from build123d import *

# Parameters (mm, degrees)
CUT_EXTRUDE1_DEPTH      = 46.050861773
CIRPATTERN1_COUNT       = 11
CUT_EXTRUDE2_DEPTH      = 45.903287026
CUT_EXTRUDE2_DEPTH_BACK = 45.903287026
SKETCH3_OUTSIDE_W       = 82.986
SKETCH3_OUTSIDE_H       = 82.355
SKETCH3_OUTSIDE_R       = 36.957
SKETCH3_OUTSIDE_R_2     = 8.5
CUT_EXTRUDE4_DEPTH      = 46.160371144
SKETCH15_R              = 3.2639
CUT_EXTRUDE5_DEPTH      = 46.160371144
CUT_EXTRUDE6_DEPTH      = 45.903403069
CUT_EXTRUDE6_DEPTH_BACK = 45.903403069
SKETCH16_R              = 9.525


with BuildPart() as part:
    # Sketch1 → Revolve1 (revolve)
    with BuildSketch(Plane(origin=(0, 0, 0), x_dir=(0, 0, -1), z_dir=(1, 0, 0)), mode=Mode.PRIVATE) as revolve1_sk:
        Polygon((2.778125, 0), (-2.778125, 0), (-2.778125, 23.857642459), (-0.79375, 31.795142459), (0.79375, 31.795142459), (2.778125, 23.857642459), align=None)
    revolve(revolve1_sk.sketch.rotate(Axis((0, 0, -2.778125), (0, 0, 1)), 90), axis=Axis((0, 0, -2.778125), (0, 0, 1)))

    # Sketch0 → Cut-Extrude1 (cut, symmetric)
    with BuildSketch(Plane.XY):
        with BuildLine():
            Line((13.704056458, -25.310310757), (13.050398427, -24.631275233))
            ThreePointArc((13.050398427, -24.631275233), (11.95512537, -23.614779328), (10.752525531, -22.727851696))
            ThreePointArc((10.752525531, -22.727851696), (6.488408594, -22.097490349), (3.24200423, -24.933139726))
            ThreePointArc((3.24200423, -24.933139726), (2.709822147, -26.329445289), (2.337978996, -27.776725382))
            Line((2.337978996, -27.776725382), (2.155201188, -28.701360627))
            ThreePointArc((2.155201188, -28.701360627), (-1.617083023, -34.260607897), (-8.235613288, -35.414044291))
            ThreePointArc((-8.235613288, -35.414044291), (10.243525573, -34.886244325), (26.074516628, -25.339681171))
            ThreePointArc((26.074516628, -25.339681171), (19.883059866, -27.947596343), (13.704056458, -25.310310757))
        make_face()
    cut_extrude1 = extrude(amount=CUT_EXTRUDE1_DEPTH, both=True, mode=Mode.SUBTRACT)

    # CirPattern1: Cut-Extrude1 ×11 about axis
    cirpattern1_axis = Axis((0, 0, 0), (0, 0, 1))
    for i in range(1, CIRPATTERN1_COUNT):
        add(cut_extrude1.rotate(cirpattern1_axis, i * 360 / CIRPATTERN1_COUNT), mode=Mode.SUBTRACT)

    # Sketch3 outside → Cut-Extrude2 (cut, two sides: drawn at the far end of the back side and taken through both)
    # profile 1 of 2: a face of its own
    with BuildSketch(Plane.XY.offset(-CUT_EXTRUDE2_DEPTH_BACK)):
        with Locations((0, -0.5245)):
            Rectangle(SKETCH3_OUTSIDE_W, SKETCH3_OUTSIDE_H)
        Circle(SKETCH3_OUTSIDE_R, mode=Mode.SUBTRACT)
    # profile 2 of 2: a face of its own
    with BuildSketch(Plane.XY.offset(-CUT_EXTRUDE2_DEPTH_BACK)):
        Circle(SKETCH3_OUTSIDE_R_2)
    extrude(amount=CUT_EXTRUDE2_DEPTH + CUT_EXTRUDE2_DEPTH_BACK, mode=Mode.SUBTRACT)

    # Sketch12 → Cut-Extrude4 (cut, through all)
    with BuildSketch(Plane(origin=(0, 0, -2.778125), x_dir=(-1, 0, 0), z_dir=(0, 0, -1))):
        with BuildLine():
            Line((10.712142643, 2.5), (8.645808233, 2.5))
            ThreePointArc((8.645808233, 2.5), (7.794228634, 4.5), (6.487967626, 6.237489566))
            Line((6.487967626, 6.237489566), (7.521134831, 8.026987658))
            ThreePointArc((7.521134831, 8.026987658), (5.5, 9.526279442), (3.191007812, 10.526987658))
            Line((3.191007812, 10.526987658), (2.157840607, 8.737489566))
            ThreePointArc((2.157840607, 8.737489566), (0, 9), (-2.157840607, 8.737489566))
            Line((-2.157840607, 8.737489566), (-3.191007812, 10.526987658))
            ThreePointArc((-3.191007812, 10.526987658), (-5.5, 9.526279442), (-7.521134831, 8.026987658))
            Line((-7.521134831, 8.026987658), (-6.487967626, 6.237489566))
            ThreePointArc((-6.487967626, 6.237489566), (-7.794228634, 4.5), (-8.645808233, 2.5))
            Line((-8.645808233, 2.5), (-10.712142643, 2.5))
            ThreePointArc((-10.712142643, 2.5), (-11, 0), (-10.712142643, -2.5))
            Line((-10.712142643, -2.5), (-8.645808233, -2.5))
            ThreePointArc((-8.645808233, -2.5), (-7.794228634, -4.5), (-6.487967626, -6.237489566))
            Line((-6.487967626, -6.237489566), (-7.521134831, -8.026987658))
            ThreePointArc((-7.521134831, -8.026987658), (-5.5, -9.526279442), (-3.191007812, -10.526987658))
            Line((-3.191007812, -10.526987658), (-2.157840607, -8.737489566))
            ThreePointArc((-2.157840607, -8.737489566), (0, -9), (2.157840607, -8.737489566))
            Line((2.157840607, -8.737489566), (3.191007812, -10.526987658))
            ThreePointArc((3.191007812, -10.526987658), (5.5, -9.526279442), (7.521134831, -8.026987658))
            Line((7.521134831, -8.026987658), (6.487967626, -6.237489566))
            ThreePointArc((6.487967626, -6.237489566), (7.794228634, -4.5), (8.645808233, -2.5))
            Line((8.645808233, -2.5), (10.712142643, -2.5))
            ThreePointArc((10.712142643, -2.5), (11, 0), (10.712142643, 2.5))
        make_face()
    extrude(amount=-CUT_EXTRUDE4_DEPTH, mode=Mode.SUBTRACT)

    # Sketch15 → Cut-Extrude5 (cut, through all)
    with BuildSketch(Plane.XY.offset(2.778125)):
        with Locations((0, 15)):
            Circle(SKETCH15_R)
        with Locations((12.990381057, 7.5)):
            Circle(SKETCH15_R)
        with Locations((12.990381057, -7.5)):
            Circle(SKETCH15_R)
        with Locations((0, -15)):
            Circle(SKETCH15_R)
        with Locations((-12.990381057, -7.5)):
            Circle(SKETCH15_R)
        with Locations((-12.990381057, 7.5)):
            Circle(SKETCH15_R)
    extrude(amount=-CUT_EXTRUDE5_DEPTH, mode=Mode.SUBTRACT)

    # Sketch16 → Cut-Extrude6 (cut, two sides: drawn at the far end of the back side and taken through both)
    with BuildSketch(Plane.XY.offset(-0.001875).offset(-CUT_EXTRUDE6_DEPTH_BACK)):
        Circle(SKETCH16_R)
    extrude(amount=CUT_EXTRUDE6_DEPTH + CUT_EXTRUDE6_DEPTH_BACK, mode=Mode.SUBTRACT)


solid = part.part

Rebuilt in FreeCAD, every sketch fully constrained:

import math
import FreeCAD as App
import Part
import Sketcher

V = App.Vector
Q = App.Units.Quantity


def add_polygon(sketch, points):
    """Adds a closed chain of lines whose ends are joined by coincident constraints."""
    first, n = sketch.GeometryCount, len(points)
    for a, b in zip(points, points[1:] + points[:1]):
        sketch.addGeometry(Part.LineSegment(App.Vector(*a, 0), App.Vector(*b, 0)), False)
    for i in range(n):
        sketch.addConstraint(Sketcher.Constraint("Coincident", first + i, 2, first + (i + 1) % n, 1))

doc = App.newDocument("Part")
params = doc.addObject("Spreadsheet::Sheet", "Params")
for row, (alias, value) in enumerate([
    ("sketch1_height", "0.21875 in"),
    ("sketch1_height2", "0.0625 in"),
    ("revolution_angle", "360 deg"),
    ("pocket1_length", "92.101724 mm"),
    ("sketch3_diameter", "2.91 in"),
    ("sketch5_diameter", "0.257 in"),
    ("sketch6_diameter", "0.75 in"),
], start=1):
    params.set(f"A{row}", alias)
    params.set(f"B{row}", "=" + value)
    params.setAlias(f"B{row}", alias)

body = doc.addObject("PartDesign::Body", "Body")

# Sketch on YZ plane
sketch1 = doc.addObject("Sketcher::SketchObject", "Sketch")
body.addObject(sketch1)
sketch1.AttachmentSupport = (doc.YZ_Plane, [""])
sketch1.MapMode = "FlatFace"
add_polygon(sketch1, [(0, 2.778125), (0, -2.778125), (23.857642, -2.778125), (31.795142, -0.79375), (31.795142, 0.79375), (23.857642, 2.778125)])  # lines 0-5
sketch1.addConstraint(Sketcher.Constraint("Vertical", 0))
sketch1.addConstraint(Sketcher.Constraint("Horizontal", 1))
sketch1.addConstraint(Sketcher.Constraint("Vertical", 3))
sketch1.addConstraint(Sketcher.Constraint("Horizontal", 5))
sketch1.addConstraint(Sketcher.Constraint("Symmetric", 0, 2, 5, 2, -1, 1))
sketch1.addConstraint(Sketcher.Constraint("Vertical", 1, 2, 4, 2))
sketch1.addConstraint(Sketcher.Constraint("Equal", 2, 4))
sketch1.addConstraint(Sketcher.Constraint("DistanceY", 0, 2, 0, 1, Q("0.21875 in")))
sketch1.addConstraint(Sketcher.Constraint("DistanceY", 3, 1, 3, 2, Q("0.0625 in")))
sketch1.addConstraint(Sketcher.Constraint("DistanceX", 1, 2, 2, 2, Q("0.3125 in")))
sketch1.addConstraint(Sketcher.Constraint("DistanceX", 1, 1, 1, 2, 23.857642))
sketch1.setExpression("Constraints[13]", "Params.sketch1_height")
sketch1.setExpression("Constraints[14]", "Params.sketch1_height2")
revolution = doc.addObject("PartDesign::Revolution", "Revolution")
body.addObject(revolution)
revolution.Profile = sketch1
revolution.ReferenceAxis = (sketch1, ["V_Axis"])
revolution.setExpression("Angle", "Params.revolution_angle")

# Sketch on XY plane
sketch2 = doc.addObject("Sketcher::SketchObject", "Sketch001")
body.addObject(sketch2)
sketch2.AttachmentSupport = (doc.XY_Plane, [""])
sketch2.MapMode = "FlatFace"
sketch2.addGeometry(Part.LineSegment(V(13.704056, -25.310311, 0), V(13.050398, -24.631275, 0)), False)
sketch2.addGeometry(Part.ArcOfCircle(Part.Circle(V(3.489065, -33.835275, 0), V(0, 0, 1), 13.2715), math.radians(43.909091), math.radians(56.818182)), False)
sketch2.addGeometry(Part.ArcOfCircle(Part.Circle(V(7.9375, -27.032642, 0), V(0, 0, 1), 5.1435), math.radians(56.818182), math.radians(155.909091)), False)
sketch2.addGeometry(Part.ArcOfCircle(Part.Circle(V(15.357543, -30.350375, 0), V(0, 0, 1), 13.2715), math.radians(155.909091), math.radians(168.818182)), False)
sketch2.addGeometry(Part.LineSegment(V(2.337979, -27.776725, 0), V(2.155201, -28.701361, 0)), False)
sketch2.addGeometry(Part.ArcOfCircle(Part.Circle(V(-6.2865, -27.032642, 0), V(0, 0, 1), 8.605053), math.radians(-103.091569), math.radians(-11.181818)), False)
sketch2.addGeometry(Part.ArcOfCircle(Part.Circle(V(0, 0, 0), V(0, 0, 1), 36.359041), math.radians(-103.091569), math.radians(-44.181158)), False)
sketch2.addGeometry(Part.ArcOfCircle(Part.Circle(V(19.90349, -19.342567, 0), V(0, 0, 1), 8.605053), math.radians(-136.090909), math.radians(-44.181158)), False)
sketch2.addConstraint(Sketcher.Constraint("Tangent", 0, 2, 1, 1))
sketch2.addConstraint(Sketcher.Constraint("Tangent", 1, 2, 2, 1))
sketch2.addConstraint(Sketcher.Constraint("Tangent", 2, 2, 3, 1))
sketch2.addConstraint(Sketcher.Constraint("Tangent", 3, 2, 4, 1))
sketch2.addConstraint(Sketcher.Constraint("Tangent", 4, 2, 5, 2))
sketch2.addConstraint(Sketcher.Constraint("Tangent", 5, 1, 6, 1))
sketch2.addConstraint(Sketcher.Constraint("Tangent", 6, 2, 7, 2))
sketch2.addConstraint(Sketcher.Constraint("Tangent", 7, 1, 0, 1))
sketch2.addConstraint(Sketcher.Constraint("Coincident", 6, 3, -1, 1))
sketch2.addConstraint(Sketcher.Constraint("Equal", 1, 3))
sketch2.addConstraint(Sketcher.Constraint("Equal", 5, 7))
sketch2.addConstraint(Sketcher.Constraint("Horizontal", 2, 3, 5, 3))
sketch2.addConstraint(Sketcher.Constraint("Equal", 0, 4))
sketch2.addConstraint(Sketcher.Constraint("Radius", 1, Q("0.5225 in")))
sketch2.addConstraint(Sketcher.Constraint("Radius", 2, Q("0.2025 in")))
sketch2.addConstraint(Sketcher.Constraint("DistanceX", 5, 3, 2, 3, Q("0.56 in")))
sketch2.addConstraint(Sketcher.Constraint("DistanceX", -1, 1, 2, 3, Q("0.3125 in")))
sketch2.addConstraint(Sketcher.Constraint("Radius", 6, 36.359041))
sketch2.addConstraint(Sketcher.Constraint("Radius", 5, 8.605053))
sketch2.addConstraint(Sketcher.Constraint("DistanceX", 1, 2, 3, 3, Q("0.1812999 in")))
sketch2.addConstraint(Sketcher.Constraint("DistanceY", 1, 3, 1, 2, Q("0.4373001 in")))
pocket1 = doc.addObject("PartDesign::Pocket", "Pocket")
body.addObject(pocket1)
pocket1.Profile = sketch2
pocket1.setExpression("Length", "Params.pocket1_length")
pocket1.Midplane = True
doc.recompute()

polarpattern = doc.addObject("PartDesign::PolarPattern", "PolarPattern")
body.addObject(polarpattern)
polarpattern.Originals = [pocket1]
polarpattern.Axis = (doc.Z_Axis, [""])
polarpattern.Angle = 360
polarpattern.Occurrences = 11
body.Tip = polarpattern

# Sketch on XY plane
sketch3 = doc.addObject("Sketcher::SketchObject", "Sketch002")
body.addObject(sketch3)
sketch3.AttachmentSupport = (doc.XY_Plane, [""])
sketch3.MapMode = "FlatFace"
add_polygon(sketch3, [(-41.493, 40.653), (-41.493, -41.702), (41.493, -41.702), (41.493, 40.653)])  # lines 0-3
sketch3.addGeometry(Part.Circle(V(0, 0, 0), V(0, 0, 1), 36.957), False)  # 4
sketch3.addGeometry(Part.Circle(V(0, 0, 0), V(0, 0, 1), 8.5), False)  # 5
sketch3.addConstraint(Sketcher.Constraint("Vertical", 0))
sketch3.addConstraint(Sketcher.Constraint("Horizontal", 1))
sketch3.addConstraint(Sketcher.Constraint("Vertical", 2))
sketch3.addConstraint(Sketcher.Constraint("Horizontal", 3))
sketch3.addConstraint(Sketcher.Constraint("Coincident", 4, 3, -1, 1))
sketch3.addConstraint(Sketcher.Constraint("Coincident", 5, 3, -1, 1))
sketch3.addConstraint(Sketcher.Constraint("Diameter", 4, Q("2.91 in")))
sketch3.addConstraint(Sketcher.Constraint("Diameter", 5, 17.0))
sketch3.addConstraint(Sketcher.Constraint("DistanceX", 1, 1, 1, 2, 82.986))
sketch3.addConstraint(Sketcher.Constraint("DistanceY", 0, 2, 0, 1, 82.355))
sketch3.addConstraint(Sketcher.Constraint("DistanceX", 0, 2, -1, 1, 41.493))
sketch3.addConstraint(Sketcher.Constraint("DistanceY", 0, 2, -1, 1, 41.702))
sketch3.setExpression("Constraints[10]", "Params.sketch3_diameter")
pocket2 = doc.addObject("PartDesign::Pocket", "Pocket001")
body.addObject(pocket2)
pocket2.Profile = sketch3
pocket2.Type = "ThroughAll"
pocket2.Midplane = True

# Sketch on XY plane
sketch4 = doc.addObject("Sketcher::SketchObject", "Sketch003")
body.addObject(sketch4)
sketch4.AttachmentSupport = (doc.XY_Plane, [""])
sketch4.MapMode = "FlatFace"
sketch4.AttachmentOffset = App.Placement(V(0, 0, -0.109375 * 25.4), App.Rotation())
sketch4.addGeometry(Part.LineSegment(V(-10.712143, 2.5, 0), V(-8.645808, 2.5, 0)), False)
sketch4.addGeometry(Part.ArcOfCircle(Part.Circle(V(0, 0, 0), V(0, 0, 1), 9), math.radians(136.12762), math.radians(163.87238)), False)
sketch4.addGeometry(Part.LineSegment(V(-6.487968, 6.23749, 0), V(-7.521135, 8.026988, 0)), False)
sketch4.addGeometry(Part.ArcOfCircle(Part.Circle(V(0, 0, 0), V(0, 0, 1), 11), math.radians(106.863441), math.radians(133.136559)), False)
sketch4.addGeometry(Part.LineSegment(V(-3.191008, 10.526988, 0), V(-2.157841, 8.73749, 0)), False)
sketch4.addGeometry(Part.ArcOfCircle(Part.Circle(V(0, 0, 0), V(0, 0, 1), 9), math.radians(76.12762), math.radians(103.87238)), False)
sketch4.addGeometry(Part.LineSegment(V(2.157841, 8.73749, 0), V(3.191008, 10.526988, 0)), False)
sketch4.addGeometry(Part.ArcOfCircle(Part.Circle(V(0, 0, 0), V(0, 0, 1), 11), math.radians(46.863441), math.radians(73.136559)), False)
sketch4.addGeometry(Part.LineSegment(V(7.521135, 8.026988, 0), V(6.487968, 6.23749, 0)), False)
sketch4.addGeometry(Part.ArcOfCircle(Part.Circle(V(0, 0, 0), V(0, 0, 1), 9), math.radians(16.12762), math.radians(43.87238)), False)
sketch4.addGeometry(Part.LineSegment(V(8.645808, 2.5, 0), V(10.712143, 2.5, 0)), False)
sketch4.addGeometry(Part.ArcOfCircle(Part.Circle(V(0, 0, 0), V(0, 0, 1), 11), math.radians(-13.136559), math.radians(13.136559)), False)
sketch4.addGeometry(Part.LineSegment(V(10.712143, -2.5, 0), V(8.645808, -2.5, 0)), False)
sketch4.addGeometry(Part.ArcOfCircle(Part.Circle(V(0, 0, 0), V(0, 0, 1), 9), math.radians(-43.87238), math.radians(-16.12762)), False)
sketch4.addGeometry(Part.LineSegment(V(6.487968, -6.23749, 0), V(7.521135, -8.026988, 0)), False)
sketch4.addGeometry(Part.ArcOfCircle(Part.Circle(V(0, 0, 0), V(0, 0, 1), 11), math.radians(-73.136559), math.radians(-46.863441)), False)
sketch4.addGeometry(Part.LineSegment(V(3.191008, -10.526988, 0), V(2.157841, -8.73749, 0)), False)
sketch4.addGeometry(Part.ArcOfCircle(Part.Circle(V(0, 0, 0), V(0, 0, 1), 9), math.radians(-103.87238), math.radians(-76.12762)), False)
sketch4.addGeometry(Part.LineSegment(V(-2.157841, -8.73749, 0), V(-3.191008, -10.526988, 0)), False)
sketch4.addGeometry(Part.ArcOfCircle(Part.Circle(V(0, 0, 0), V(0, 0, 1), 11), math.radians(-133.136559), math.radians(-106.863441)), False)
sketch4.addGeometry(Part.LineSegment(V(-7.521135, -8.026988, 0), V(-6.487968, -6.23749, 0)), False)
sketch4.addGeometry(Part.ArcOfCircle(Part.Circle(V(0, 0, 0), V(0, 0, 1), 9), math.radians(-163.87238), math.radians(-136.12762)), False)
sketch4.addGeometry(Part.LineSegment(V(-8.645808, -2.5, 0), V(-10.712143, -2.5, 0)), False)
sketch4.addGeometry(Part.ArcOfCircle(Part.Circle(V(0, 0, 0), V(0, 0, 1), 11), math.radians(166.863441), math.radians(193.136559)), False)
sketch4.addConstraint(Sketcher.Constraint("Coincident", 0, 2, 1, 2))
sketch4.addConstraint(Sketcher.Constraint("Coincident", 1, 1, 2, 1))
sketch4.addConstraint(Sketcher.Constraint("Coincident", 2, 2, 3, 2))
sketch4.addConstraint(Sketcher.Constraint("Coincident", 3, 1, 4, 1))
sketch4.addConstraint(Sketcher.Constraint("Coincident", 4, 2, 5, 2))
sketch4.addConstraint(Sketcher.Constraint("Coincident", 5, 1, 6, 1))
sketch4.addConstraint(Sketcher.Constraint("Coincident", 6, 2, 7, 2))
sketch4.addConstraint(Sketcher.Constraint("Coincident", 7, 1, 8, 1))
sketch4.addConstraint(Sketcher.Constraint("Coincident", 8, 2, 9, 2))
sketch4.addConstraint(Sketcher.Constraint("Coincident", 9, 1, 10, 1))
sketch4.addConstraint(Sketcher.Constraint("Coincident", 10, 2, 11, 2))
sketch4.addConstraint(Sketcher.Constraint("Coincident", 11, 1, 12, 1))
sketch4.addConstraint(Sketcher.Constraint("Coincident", 12, 2, 13, 2))
sketch4.addConstraint(Sketcher.Constraint("Coincident", 13, 1, 14, 1))
sketch4.addConstraint(Sketcher.Constraint("Coincident", 14, 2, 15, 2))
sketch4.addConstraint(Sketcher.Constraint("Coincident", 15, 1, 16, 1))
sketch4.addConstraint(Sketcher.Constraint("Coincident", 16, 2, 17, 2))
sketch4.addConstraint(Sketcher.Constraint("Coincident", 17, 1, 18, 1))
sketch4.addConstraint(Sketcher.Constraint("Coincident", 18, 2, 19, 2))
sketch4.addConstraint(Sketcher.Constraint("Coincident", 19, 1, 20, 1))
sketch4.addConstraint(Sketcher.Constraint("Coincident", 20, 2, 21, 2))
sketch4.addConstraint(Sketcher.Constraint("Coincident", 21, 1, 22, 1))
sketch4.addConstraint(Sketcher.Constraint("Coincident", 22, 2, 23, 2))
sketch4.addConstraint(Sketcher.Constraint("Coincident", 23, 1, 0, 1))
sketch4.addConstraint(Sketcher.Constraint("Horizontal", 0))
sketch4.addConstraint(Sketcher.Constraint("Horizontal", 10))
sketch4.addConstraint(Sketcher.Constraint("Horizontal", 12))
sketch4.addConstraint(Sketcher.Constraint("Horizontal", 22))
sketch4.addConstraint(Sketcher.Constraint("Coincident", 1, 3, -1, 1))
sketch4.addConstraint(Sketcher.Constraint("Coincident", 3, 3, -1, 1))
sketch4.addConstraint(Sketcher.Constraint("Coincident", 5, 3, -1, 1))
sketch4.addConstraint(Sketcher.Constraint("Coincident", 7, 3, -1, 1))
sketch4.addConstraint(Sketcher.Constraint("Coincident", 9, 3, -1, 1))
sketch4.addConstraint(Sketcher.Constraint("Coincident", 11, 3, -1, 1))
sketch4.addConstraint(Sketcher.Constraint("Coincident", 13, 3, -1, 1))
sketch4.addConstraint(Sketcher.Constraint("Coincident", 15, 3, -1, 1))
sketch4.addConstraint(Sketcher.Constraint("Coincident", 17, 3, -1, 1))
sketch4.addConstraint(Sketcher.Constraint("Coincident", 19, 3, -1, 1))
sketch4.addConstraint(Sketcher.Constraint("Coincident", 21, 3, -1, 1))
sketch4.addConstraint(Sketcher.Constraint("Coincident", 23, 3, -1, 1))
sketch4.addConstraint(Sketcher.Constraint("Equal", 1, 5))
sketch4.addConstraint(Sketcher.Constraint("Equal", 3, 7))
sketch4.addConstraint(Sketcher.Constraint("Equal", 5, 9))
sketch4.addConstraint(Sketcher.Constraint("Equal", 7, 11))
sketch4.addConstraint(Sketcher.Constraint("Equal", 9, 13))
sketch4.addConstraint(Sketcher.Constraint("Equal", 11, 15))
sketch4.addConstraint(Sketcher.Constraint("Equal", 13, 17))
sketch4.addConstraint(Sketcher.Constraint("Equal", 15, 19))
sketch4.addConstraint(Sketcher.Constraint("Equal", 17, 21))
sketch4.addConstraint(Sketcher.Constraint("Equal", 19, 23))
sketch4.addConstraint(Sketcher.Constraint("Parallel", 2, 4))
sketch4.addConstraint(Sketcher.Constraint("Parallel", 6, 8))
sketch4.addConstraint(Sketcher.Constraint("Parallel", 4, 14))
sketch4.addConstraint(Sketcher.Constraint("Parallel", 14, 16))
sketch4.addConstraint(Sketcher.Constraint("Parallel", 8, 18))
sketch4.addConstraint(Sketcher.Constraint("Parallel", 18, 20))
sketch4.addConstraint(Sketcher.Constraint("Horizontal", 4, 2, 5, 1))
sketch4.addConstraint(Sketcher.Constraint("Horizontal", 3, 1, 6, 2))
sketch4.addConstraint(Sketcher.Constraint("Horizontal", 2, 2, 7, 1))
sketch4.addConstraint(Sketcher.Constraint("Horizontal", 0, 2, 9, 1))
sketch4.addConstraint(Sketcher.Constraint("Horizontal", 16, 2, 17, 1))
sketch4.addConstraint(Sketcher.Constraint("Horizontal", 14, 2, 19, 1))
sketch4.addConstraint(Sketcher.Constraint("Horizontal", 12, 2, 21, 1))
sketch4.addConstraint(Sketcher.Constraint("Vertical", 10, 2, 11, 1))
sketch4.addConstraint(Sketcher.Constraint("Vertical", 8, 2, 13, 1))
sketch4.addConstraint(Sketcher.Constraint("Vertical", 6, 2, 15, 1))
sketch4.addConstraint(Sketcher.Constraint("Equal", 2, 4))
sketch4.addConstraint(Sketcher.Constraint("Angle", 2, Q("120 deg")))
sketch4.addConstraint(Sketcher.Constraint("Radius", 1, 9.0))
sketch4.addConstraint(Sketcher.Constraint("Radius", 3, 11.0))
sketch4.addConstraint(Sketcher.Constraint("DistanceY", -1, 1, 0, 2, 2.5))
sketch4.addConstraint(Sketcher.Constraint("DistanceY", 2, 2, 3, 1, 2.5))
pocket3 = doc.addObject("PartDesign::Pocket", "Pocket002")
body.addObject(pocket3)
pocket3.Profile = sketch4
pocket3.Type = "ThroughAll"
pocket3.Reversed = True

# Sketch on XY plane
sketch5 = doc.addObject("Sketcher::SketchObject", "Sketch004")
body.addObject(sketch5)
sketch5.AttachmentSupport = (doc.XY_Plane, [""])
sketch5.MapMode = "FlatFace"
sketch5.AttachmentOffset = App.Placement(V(0, 0, 0.109375 * 25.4), App.Rotation())
sketch5.addGeometry(Part.Circle(V(0, 15, 0), V(0, 0, 1), 3.2639), False)
sketch5.addGeometry(Part.Circle(V(12.990381, 7.5, 0), V(0, 0, 1), 3.2639), False)
sketch5.addGeometry(Part.Circle(V(12.990381, -7.5, 0), V(0, 0, 1), 3.2639), False)
sketch5.addGeometry(Part.Circle(V(0, -15, 0), V(0, 0, 1), 3.2639), False)
sketch5.addGeometry(Part.Circle(V(-12.990381, -7.5, 0), V(0, 0, 1), 3.2639), False)
sketch5.addGeometry(Part.Circle(V(-12.990381, 7.5, 0), V(0, 0, 1), 3.2639), False)
sketch5.addConstraint(Sketcher.Constraint("Equal", 0, 1))
sketch5.addConstraint(Sketcher.Constraint("Equal", 1, 2))
sketch5.addConstraint(Sketcher.Constraint("Equal", 2, 3))
sketch5.addConstraint(Sketcher.Constraint("Equal", 3, 4))
sketch5.addConstraint(Sketcher.Constraint("Equal", 4, 5))
sketch5.addConstraint(Sketcher.Constraint("Symmetric", 0, 3, 3, 3, -1, 1))
sketch5.addConstraint(Sketcher.Constraint("Symmetric", 1, 3, 4, 3, -1, 1))
sketch5.addConstraint(Sketcher.Constraint("Symmetric", 2, 3, 5, 3, -1, 1))
sketch5.addConstraint(Sketcher.Constraint("Symmetric", 2, 3, 4, 3, -2))
sketch5.addConstraint(Sketcher.Constraint("PointOnObject", 0, 3, -2))
sketch5.addConstraint(Sketcher.Constraint("Diameter", 0, Q("0.257 in")))
sketch5.addConstraint(Sketcher.Constraint("DistanceY", -1, 1, 0, 3, 15.0))
sketch5.addConstraint(Sketcher.Constraint("DistanceY", -1, 1, 1, 3, 7.5))
sketch5.addConstraint(Sketcher.Constraint("DistanceX", -1, 1, 1, 3, 12.990381))
sketch5.setExpression("Constraints[10]", "Params.sketch5_diameter")
pocket4 = doc.addObject("PartDesign::Pocket", "Pocket003")
body.addObject(pocket4)
pocket4.Profile = sketch5
pocket4.Type = "ThroughAll"

# Sketch on XY plane
sketch6 = doc.addObject("Sketcher::SketchObject", "Sketch005")
body.addObject(sketch6)
sketch6.AttachmentSupport = (doc.XY_Plane, [""])
sketch6.MapMode = "FlatFace"
sketch6.AttachmentOffset = App.Placement(V(0, 0, -0.001875), App.Rotation())
sketch6.addGeometry(Part.Circle(V(0, 0, 0), V(0, 0, 1), 9.525), False)
sketch6.addConstraint(Sketcher.Constraint("Coincident", 0, 3, -1, 1))
sketch6.addConstraint(Sketcher.Constraint("Diameter", 0, Q("0.75 in")))
sketch6.setExpression("Constraints[1]", "Params.sketch6_diameter")
pocket5 = doc.addObject("PartDesign::Pocket", "Pocket004")
body.addObject(pocket5)
pocket5.Profile = sketch6
pocket5.Type = "ThroughAll"
pocket5.Midplane = True

doc.recompute()
